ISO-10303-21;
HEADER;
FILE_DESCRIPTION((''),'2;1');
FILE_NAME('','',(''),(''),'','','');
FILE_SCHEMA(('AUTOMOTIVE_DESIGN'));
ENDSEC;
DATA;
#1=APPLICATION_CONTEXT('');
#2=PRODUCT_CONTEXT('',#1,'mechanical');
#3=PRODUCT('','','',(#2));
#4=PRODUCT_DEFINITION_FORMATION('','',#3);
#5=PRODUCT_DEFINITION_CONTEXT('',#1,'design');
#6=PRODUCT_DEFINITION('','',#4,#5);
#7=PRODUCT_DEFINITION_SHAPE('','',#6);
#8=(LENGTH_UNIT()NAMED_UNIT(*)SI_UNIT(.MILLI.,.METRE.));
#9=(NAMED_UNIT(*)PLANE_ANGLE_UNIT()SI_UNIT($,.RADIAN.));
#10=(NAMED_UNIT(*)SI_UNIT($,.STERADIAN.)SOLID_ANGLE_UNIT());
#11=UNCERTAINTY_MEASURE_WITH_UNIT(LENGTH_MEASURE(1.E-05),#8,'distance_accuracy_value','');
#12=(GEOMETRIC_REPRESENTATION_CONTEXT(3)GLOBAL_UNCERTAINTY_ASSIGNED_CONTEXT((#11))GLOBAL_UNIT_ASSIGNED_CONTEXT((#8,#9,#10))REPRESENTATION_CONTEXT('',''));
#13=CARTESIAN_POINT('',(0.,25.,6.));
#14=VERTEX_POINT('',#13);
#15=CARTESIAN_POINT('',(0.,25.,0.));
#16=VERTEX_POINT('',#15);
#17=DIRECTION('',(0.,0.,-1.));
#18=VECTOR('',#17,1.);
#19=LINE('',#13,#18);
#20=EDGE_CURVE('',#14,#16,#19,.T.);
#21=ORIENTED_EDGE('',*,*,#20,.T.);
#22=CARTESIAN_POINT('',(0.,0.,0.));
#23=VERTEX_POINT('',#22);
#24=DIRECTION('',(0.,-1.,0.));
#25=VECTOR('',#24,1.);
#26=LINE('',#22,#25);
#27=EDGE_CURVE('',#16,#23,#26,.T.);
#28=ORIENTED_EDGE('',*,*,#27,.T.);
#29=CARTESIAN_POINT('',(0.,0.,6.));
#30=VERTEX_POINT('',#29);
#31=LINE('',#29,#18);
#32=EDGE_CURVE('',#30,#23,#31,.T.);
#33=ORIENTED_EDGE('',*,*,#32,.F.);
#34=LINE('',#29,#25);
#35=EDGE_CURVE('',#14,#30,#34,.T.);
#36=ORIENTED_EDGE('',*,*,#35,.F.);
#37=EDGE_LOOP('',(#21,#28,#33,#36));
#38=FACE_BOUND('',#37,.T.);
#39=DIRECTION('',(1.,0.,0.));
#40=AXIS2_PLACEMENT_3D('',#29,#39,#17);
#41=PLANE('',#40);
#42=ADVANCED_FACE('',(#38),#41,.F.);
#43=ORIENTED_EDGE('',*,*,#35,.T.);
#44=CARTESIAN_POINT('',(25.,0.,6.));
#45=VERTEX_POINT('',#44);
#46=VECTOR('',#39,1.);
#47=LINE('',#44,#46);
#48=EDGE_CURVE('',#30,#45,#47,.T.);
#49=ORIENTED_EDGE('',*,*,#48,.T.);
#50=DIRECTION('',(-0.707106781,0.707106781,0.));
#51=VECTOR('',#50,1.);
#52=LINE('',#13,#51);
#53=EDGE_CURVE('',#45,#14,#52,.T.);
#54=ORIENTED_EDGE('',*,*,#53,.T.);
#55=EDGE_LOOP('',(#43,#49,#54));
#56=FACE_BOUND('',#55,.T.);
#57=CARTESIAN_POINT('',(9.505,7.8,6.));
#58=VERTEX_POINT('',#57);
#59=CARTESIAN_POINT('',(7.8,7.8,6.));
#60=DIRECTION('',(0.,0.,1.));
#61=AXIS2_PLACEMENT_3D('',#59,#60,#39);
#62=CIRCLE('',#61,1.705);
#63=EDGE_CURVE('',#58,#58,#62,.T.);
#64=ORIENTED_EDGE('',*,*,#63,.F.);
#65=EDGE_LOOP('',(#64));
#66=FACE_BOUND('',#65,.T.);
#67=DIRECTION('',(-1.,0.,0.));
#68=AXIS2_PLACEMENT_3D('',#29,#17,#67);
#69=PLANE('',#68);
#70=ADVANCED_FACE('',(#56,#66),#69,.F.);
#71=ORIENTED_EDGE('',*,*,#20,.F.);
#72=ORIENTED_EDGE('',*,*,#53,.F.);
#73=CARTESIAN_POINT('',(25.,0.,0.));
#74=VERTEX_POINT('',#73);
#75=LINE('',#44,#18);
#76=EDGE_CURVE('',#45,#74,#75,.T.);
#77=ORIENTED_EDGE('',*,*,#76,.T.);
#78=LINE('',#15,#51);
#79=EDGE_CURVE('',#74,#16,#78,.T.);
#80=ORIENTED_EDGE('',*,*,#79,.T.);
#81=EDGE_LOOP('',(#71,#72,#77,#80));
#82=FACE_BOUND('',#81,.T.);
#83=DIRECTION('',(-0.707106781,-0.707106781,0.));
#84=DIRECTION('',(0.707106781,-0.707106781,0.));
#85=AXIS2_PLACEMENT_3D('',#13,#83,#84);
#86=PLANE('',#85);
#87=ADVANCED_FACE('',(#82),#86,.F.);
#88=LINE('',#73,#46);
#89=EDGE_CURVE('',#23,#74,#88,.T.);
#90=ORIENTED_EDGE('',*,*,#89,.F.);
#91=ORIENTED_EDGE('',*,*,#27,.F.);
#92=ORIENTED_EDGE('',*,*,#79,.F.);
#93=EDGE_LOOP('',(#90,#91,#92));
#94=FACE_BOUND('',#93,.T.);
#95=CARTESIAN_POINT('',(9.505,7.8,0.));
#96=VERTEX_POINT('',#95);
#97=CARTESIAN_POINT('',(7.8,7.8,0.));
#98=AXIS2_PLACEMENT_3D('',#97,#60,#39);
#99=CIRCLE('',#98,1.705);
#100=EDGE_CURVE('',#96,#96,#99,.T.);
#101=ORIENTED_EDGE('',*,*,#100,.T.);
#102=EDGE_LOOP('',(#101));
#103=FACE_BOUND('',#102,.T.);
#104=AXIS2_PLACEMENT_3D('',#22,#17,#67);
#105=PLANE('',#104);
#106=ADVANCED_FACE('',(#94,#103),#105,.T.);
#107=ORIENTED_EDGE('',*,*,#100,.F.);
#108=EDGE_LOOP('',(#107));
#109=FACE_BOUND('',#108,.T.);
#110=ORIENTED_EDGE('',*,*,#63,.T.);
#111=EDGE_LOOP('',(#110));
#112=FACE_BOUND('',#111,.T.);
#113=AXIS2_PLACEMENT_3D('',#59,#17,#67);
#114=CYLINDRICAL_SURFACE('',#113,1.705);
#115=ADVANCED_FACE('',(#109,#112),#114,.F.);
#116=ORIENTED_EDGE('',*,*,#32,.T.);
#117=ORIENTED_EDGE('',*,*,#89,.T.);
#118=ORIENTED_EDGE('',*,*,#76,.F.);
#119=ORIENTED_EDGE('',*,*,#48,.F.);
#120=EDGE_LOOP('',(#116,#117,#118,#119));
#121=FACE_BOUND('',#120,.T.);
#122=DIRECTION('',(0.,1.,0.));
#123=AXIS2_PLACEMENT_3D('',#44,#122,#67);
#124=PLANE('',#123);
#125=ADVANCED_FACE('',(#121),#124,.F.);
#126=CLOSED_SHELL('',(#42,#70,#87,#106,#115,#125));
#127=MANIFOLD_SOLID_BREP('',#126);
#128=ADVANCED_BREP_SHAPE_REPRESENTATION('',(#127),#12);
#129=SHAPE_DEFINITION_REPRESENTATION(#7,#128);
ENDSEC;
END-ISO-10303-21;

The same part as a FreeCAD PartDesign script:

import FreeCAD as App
import Part
import Sketcher
from FreeCAD import Vector
Q = App.Units.Quantity

doc = App.newDocument("Part")
body = doc.addObject("PartDesign::Body", "Body")

sketch1 = body.newObject("Sketcher::SketchObject", "Sketch")
sketch1.AttachmentSupport = (doc.getObject("XY_Plane"), [""])
sketch1.MapMode = "FlatFace"
sketch1.addGeometry(Part.LineSegment(Vector(0, 25, 0), Vector(0, 0, 0)), False)
sketch1.addGeometry(Part.LineSegment(Vector(0, 0, 0), Vector(25, 0, 0)), False)
sketch1.addGeometry(Part.LineSegment(Vector(25, 0, 0), Vector(0, 25, 0)), False)
sketch1.addGeometry(Part.Circle(Vector(7.8, 7.8, 0), Vector(0, 0, 1), 1.7), False)
sketch1.addConstraint(Sketcher.Constraint("Coincident", 0, 2, 1, 1))
sketch1.addConstraint(Sketcher.Constraint("Coincident", 1, 2, 2, 1))
sketch1.addConstraint(Sketcher.Constraint("Coincident", 2, 2, 0, 1))
sketch1.addConstraint(Sketcher.Constraint("Vertical", 0))
sketch1.addConstraint(Sketcher.Constraint("Horizontal", 1))
sketch1.addConstraint(Sketcher.Constraint("Coincident", 0, 2, -1, 1))
sketch1.addConstraint(Sketcher.Constraint("Equal", 1, 0))
sketch1.addConstraint(Sketcher.Constraint("Diameter", 3, Q("3.41 mm")))
sketch1.addConstraint(Sketcher.Constraint("DistanceX", 1, 1, 1, 2, Q("25 mm")))
sketch1.addConstraint(Sketcher.Constraint("DistanceX", -1, 1, 3, 3, Q("7.8 mm")))
sketch1.addConstraint(Sketcher.Constraint("DistanceY", -1, 1, 3, 3, Q("7.8 mm")))
pad1 = body.newObject("PartDesign::Pad", "Pad")
pad1.Profile = sketch1
pad1.Length = 6

doc.recompute()
